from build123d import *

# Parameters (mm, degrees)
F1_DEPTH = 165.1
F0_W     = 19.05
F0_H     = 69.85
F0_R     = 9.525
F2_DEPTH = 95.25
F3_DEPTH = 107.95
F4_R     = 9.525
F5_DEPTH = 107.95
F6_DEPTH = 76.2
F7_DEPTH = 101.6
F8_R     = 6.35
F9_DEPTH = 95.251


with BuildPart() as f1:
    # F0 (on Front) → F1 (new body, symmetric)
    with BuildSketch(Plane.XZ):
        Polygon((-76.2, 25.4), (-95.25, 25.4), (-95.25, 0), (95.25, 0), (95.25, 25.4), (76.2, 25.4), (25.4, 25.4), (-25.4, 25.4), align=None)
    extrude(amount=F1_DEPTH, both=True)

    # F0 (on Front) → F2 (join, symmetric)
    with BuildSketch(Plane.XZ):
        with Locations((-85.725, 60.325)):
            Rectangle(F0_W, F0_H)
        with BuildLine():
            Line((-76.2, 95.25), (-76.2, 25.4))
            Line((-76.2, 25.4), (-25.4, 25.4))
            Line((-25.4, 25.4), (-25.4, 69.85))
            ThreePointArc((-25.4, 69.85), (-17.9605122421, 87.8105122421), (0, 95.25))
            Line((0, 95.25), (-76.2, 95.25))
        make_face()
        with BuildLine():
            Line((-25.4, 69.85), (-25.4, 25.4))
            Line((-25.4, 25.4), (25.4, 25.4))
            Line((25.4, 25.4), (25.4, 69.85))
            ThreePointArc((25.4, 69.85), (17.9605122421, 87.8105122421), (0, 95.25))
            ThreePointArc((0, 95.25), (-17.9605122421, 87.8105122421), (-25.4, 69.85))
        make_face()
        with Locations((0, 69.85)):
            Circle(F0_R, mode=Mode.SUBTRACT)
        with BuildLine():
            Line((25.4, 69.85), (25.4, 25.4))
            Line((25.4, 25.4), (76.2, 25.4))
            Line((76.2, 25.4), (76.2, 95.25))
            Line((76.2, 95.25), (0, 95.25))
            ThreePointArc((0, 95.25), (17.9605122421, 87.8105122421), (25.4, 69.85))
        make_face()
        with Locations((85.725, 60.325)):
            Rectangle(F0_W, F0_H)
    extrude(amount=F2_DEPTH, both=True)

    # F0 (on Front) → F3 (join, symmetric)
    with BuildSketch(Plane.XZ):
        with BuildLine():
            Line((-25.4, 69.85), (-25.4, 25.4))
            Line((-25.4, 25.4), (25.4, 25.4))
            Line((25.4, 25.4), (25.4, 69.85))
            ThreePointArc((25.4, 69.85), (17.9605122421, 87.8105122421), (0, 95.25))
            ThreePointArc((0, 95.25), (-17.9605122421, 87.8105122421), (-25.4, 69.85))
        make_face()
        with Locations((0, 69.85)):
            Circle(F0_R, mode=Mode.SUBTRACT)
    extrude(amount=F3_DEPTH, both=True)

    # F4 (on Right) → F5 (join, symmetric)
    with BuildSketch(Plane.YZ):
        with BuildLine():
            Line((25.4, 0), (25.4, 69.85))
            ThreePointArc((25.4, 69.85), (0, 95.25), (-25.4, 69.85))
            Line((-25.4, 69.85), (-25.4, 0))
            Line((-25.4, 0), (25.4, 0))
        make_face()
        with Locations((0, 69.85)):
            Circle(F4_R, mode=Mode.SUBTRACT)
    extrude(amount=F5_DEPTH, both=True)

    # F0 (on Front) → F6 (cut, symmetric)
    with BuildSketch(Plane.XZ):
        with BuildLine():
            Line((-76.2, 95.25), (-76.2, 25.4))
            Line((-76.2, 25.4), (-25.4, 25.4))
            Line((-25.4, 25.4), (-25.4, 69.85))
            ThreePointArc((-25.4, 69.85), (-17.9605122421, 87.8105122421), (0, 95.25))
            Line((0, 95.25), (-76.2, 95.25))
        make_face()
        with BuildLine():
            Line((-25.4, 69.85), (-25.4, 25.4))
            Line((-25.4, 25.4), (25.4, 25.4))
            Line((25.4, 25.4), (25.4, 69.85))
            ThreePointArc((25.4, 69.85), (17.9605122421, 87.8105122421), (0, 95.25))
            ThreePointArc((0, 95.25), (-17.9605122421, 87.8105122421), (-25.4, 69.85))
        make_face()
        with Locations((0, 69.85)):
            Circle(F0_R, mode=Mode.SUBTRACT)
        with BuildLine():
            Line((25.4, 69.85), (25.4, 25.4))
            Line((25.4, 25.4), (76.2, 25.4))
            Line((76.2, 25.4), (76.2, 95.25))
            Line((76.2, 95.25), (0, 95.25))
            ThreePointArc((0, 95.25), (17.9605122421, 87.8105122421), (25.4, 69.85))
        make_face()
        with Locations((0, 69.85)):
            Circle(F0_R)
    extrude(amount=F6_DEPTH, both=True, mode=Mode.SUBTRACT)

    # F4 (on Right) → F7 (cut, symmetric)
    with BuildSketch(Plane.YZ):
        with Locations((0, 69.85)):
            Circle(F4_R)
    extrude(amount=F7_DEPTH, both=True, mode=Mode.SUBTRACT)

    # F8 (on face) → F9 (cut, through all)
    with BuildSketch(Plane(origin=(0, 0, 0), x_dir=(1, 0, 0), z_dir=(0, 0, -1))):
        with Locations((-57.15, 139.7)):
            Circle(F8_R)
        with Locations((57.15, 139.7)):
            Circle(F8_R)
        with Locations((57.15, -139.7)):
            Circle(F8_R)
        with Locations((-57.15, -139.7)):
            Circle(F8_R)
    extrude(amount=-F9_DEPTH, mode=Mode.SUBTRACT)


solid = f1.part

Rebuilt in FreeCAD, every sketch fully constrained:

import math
import FreeCAD as App
import Part
import Sketcher

V = App.Vector
Q = App.Units.Quantity

doc = App.newDocument("Part")
body = doc.addObject("PartDesign::Body", "Body")

# Sketch on XZ plane
sketch1 = body.newObject("Sketcher::SketchObject", "Sketch")
sketch1.AttachmentSupport = (doc.getObject("XZ_Plane"), [""])
sketch1.MapMode = "FlatFace"
sketch1.addGeometry(Part.LineSegment(V(-95, 25, 0), V(-95, 0, 0)), False)
sketch1.addGeometry(Part.LineSegment(V(-95, 0, 0), V(95, 0, 0)), False)
sketch1.addGeometry(Part.LineSegment(V(95, 0, 0), V(95, 25, 0)), False)
sketch1.addGeometry(Part.LineSegment(V(95, 25, 0), V(-95, 25, 0)), False)
sketch1.addConstraint(Sketcher.Constraint("Coincident", 0, 2, 1, 1))
sketch1.addConstraint(Sketcher.Constraint("Coincident", 1, 2, 2, 1))
sketch1.addConstraint(Sketcher.Constraint("Coincident", 2, 2, 3, 1))
sketch1.addConstraint(Sketcher.Constraint("Coincident", 3, 2, 0, 1))
sketch1.addConstraint(Sketcher.Constraint("Vertical", 0))
sketch1.addConstraint(Sketcher.Constraint("Horizontal", 1))
sketch1.addConstraint(Sketcher.Constraint("Vertical", 2))
sketch1.addConstraint(Sketcher.Constraint("Horizontal", 3))
sketch1.addConstraint(Sketcher.Constraint("Symmetric", 0, 2, 1, 2, -1, 1))
sketch1.addConstraint(Sketcher.Constraint("DistanceY", 0, 2, 0, 1, Q("1 in")))
sketch1.addConstraint(Sketcher.Constraint("DistanceX", 1, 1, 1, 2, Q("7.5 in")))
pad1 = body.newObject("PartDesign::Pad", "Pad")
pad1.Profile = sketch1
pad1.Length = Q("13 in")
pad1.Midplane = True

# Sketch on XZ plane
sketch2 = body.newObject("Sketcher::SketchObject", "Sketch001")
sketch2.AttachmentSupport = (doc.getObject("XZ_Plane"), [""])
sketch2.MapMode = "FlatFace"
sketch2.addGeometry(Part.LineSegment(V(-95, 95, 0), V(-95, 25, 0)), False)
sketch2.addGeometry(Part.LineSegment(V(-95, 25, 0), V(95, 25, 0)), False)
sketch2.addGeometry(Part.LineSegment(V(95, 25, 0), V(95, 95, 0)), False)
sketch2.addGeometry(Part.LineSegment(V(95, 95, 0), V(-95, 95, 0)), False)
sketch2.addGeometry(Part.Circle(V(0, 70, 0), V(0, 0, 1), 10), False)
sketch2.addConstraint(Sketcher.Constraint("Coincident", 0, 2, 1, 1))
sketch2.addConstraint(Sketcher.Constraint("Coincident", 1, 2, 2, 1))
sketch2.addConstraint(Sketcher.Constraint("Coincident", 2, 2, 3, 1))
sketch2.addConstraint(Sketcher.Constraint("Coincident", 3, 2, 0, 1))
sketch2.addConstraint(Sketcher.Constraint("Vertical", 0))
sketch2.addConstraint(Sketcher.Constraint("Horizontal", 1))
sketch2.addConstraint(Sketcher.Constraint("Vertical", 2))
sketch2.addConstraint(Sketcher.Constraint("Horizontal", 3))
sketch2.addConstraint(Sketcher.Constraint("PointOnObject", 4, 3, -2))
sketch2.addConstraint(Sketcher.Constraint("Diameter", 4, Q("0.75 in")))
sketch2.addConstraint(Sketcher.Constraint("DistanceX", 1, 1, 1, 2, Q("7.5 in")))
sketch2.addConstraint(Sketcher.Constraint("DistanceY", -1, 1, 0, 2, Q("1 in")))
sketch2.addConstraint(Sketcher.Constraint("DistanceY", 4, 3, 2, 2, Q("1 in")))
sketch2.addConstraint(Sketcher.Constraint("DistanceY", 0, 2, 0, 1, Q("2.75 in")))
sketch2.addConstraint(Sketcher.Constraint("DistanceX", 0, 2, -1, 1, Q("3.75 in")))
pad2 = body.newObject("PartDesign::Pad", "Pad001")
pad2.Profile = sketch2
pad2.Length = Q("7.5 in")
pad2.Midplane = True

# Sketch on XZ plane
sketch3 = body.newObject("Sketcher::SketchObject", "Sketch002")
sketch3.AttachmentSupport = (doc.getObject("XZ_Plane"), [""])
sketch3.MapMode = "FlatFace"
sketch3.addGeometry(Part.LineSegment(V(-25, 70, 0), V(-25, 25, 0)), False)
sketch3.addGeometry(Part.LineSegment(V(-25, 25, 0), V(25, 25, 0)), False)
sketch3.addGeometry(Part.LineSegment(V(25, 25, 0), V(25, 70, 0)), False)
sketch3.addGeometry(Part.ArcOfCircle(Part.Circle(V(0, 70, 0), V(0, 0, 1), 25), math.radians(0), math.radians(90)), False)
sketch3.addGeometry(Part.ArcOfCircle(Part.Circle(V(0, 70, 0), V(0, 0, 1), 25), math.radians(90), math.radians(180)), False)
sketch3.addGeometry(Part.Circle(V(0, 70, 0), V(0, 0, 1), 10), False)
sketch3.addConstraint(Sketcher.Constraint("Coincident", 0, 2, 1, 1))
sketch3.addConstraint(Sketcher.Constraint("Coincident", 1, 2, 2, 1))
sketch3.addConstraint(Sketcher.Constraint("Tangent", 2, 2, 3, 1))
sketch3.addConstraint(Sketcher.Constraint("Tangent", 3, 2, 4, 1))
sketch3.addConstraint(Sketcher.Constraint("Tangent", 4, 2, 0, 1))
sketch3.addConstraint(Sketcher.Constraint("Vertical", 0))
sketch3.addConstraint(Sketcher.Constraint("Horizontal", 1))
sketch3.addConstraint(Sketcher.Constraint("Vertical", 2))
sketch3.addConstraint(Sketcher.Constraint("Coincident", 5, 3, 3, 3))
sketch3.addConstraint(Sketcher.Constraint("Equal", 3, 4))
sketch3.addConstraint(Sketcher.Constraint("PointOnObject", 3, 3, -2))
sketch3.addConstraint(Sketcher.Constraint("PointOnObject", 3, 2, -2))
sketch3.addConstraint(Sketcher.Constraint("Radius", 3, Q("1 in")))
sketch3.addConstraint(Sketcher.Constraint("Diameter", 5, Q("0.75 in")))
sketch3.addConstraint(Sketcher.Constraint("DistanceY", -1, 1, 0, 2, Q("1 in")))
sketch3.addConstraint(Sketcher.Constraint("DistanceY", 0, 2, 0, 1, Q("1.75 in")))
pad3 = body.newObject("PartDesign::Pad", "Pad002")
pad3.Profile = sketch3
pad3.Length = Q("8.5 in")
pad3.Midplane = True

# Sketch on YZ plane
sketch4 = body.newObject("Sketcher::SketchObject", "Sketch003")
sketch4.AttachmentSupport = (doc.getObject("YZ_Plane"), [""])
sketch4.MapMode = "FlatFace"
sketch4.addGeometry(Part.LineSegment(V(25, 0, 0), V(25, 70, 0)), False)
sketch4.addGeometry(Part.ArcOfCircle(Part.Circle(V(0, 70, 0), V(0, 0, 1), 25), math.radians(0), math.radians(180)), False)
sketch4.addGeometry(Part.LineSegment(V(-25, 70, 0), V(-25, 0, 0)), False)
sketch4.addGeometry(Part.LineSegment(V(-25, 0, 0), V(25, 0, 0)), False)
sketch4.addGeometry(Part.Circle(V(0, 70, 0), V(0, 0, 1), 10), False)
sketch4.addConstraint(Sketcher.Constraint("Tangent", 0, 2, 1, 1))
sketch4.addConstraint(Sketcher.Constraint("Tangent", 1, 2, 2, 1))
sketch4.addConstraint(Sketcher.Constraint("Coincident", 2, 2, 3, 1))
sketch4.addConstraint(Sketcher.Constraint("Coincident", 3, 2, 0, 1))
sketch4.addConstraint(Sketcher.Constraint("Vertical", 0))
sketch4.addConstraint(Sketcher.Constraint("Vertical", 2))
sketch4.addConstraint(Sketcher.Constraint("Horizontal", 3))
sketch4.addConstraint(Sketcher.Constraint("Coincident", 4, 3, 1, 3))
sketch4.addConstraint(Sketcher.Constraint("Symmetric", 2, 2, 3, 2, -1, 1))
sketch4.addConstraint(Sketcher.Constraint("Radius", 1, Q("1 in")))
sketch4.addConstraint(Sketcher.Constraint("Diameter", 4, Q("0.75 in")))
sketch4.addConstraint(Sketcher.Constraint("DistanceY", 0, 1, 0, 2, Q("2.75 in")))
pad4 = body.newObject("PartDesign::Pad", "Pad003")
pad4.Profile = sketch4
pad4.Length = Q("8.5 in")
pad4.Midplane = True

# Sketch on XZ plane
sketch5 = body.newObject("Sketcher::SketchObject", "Sketch004")
sketch5.AttachmentSupport = (doc.getObject("XZ_Plane"), [""])
sketch5.MapMode = "FlatFace"
sketch5.addGeometry(Part.LineSegment(V(-76, 95, 0), V(-76, 25, 0)), False)
sketch5.addGeometry(Part.LineSegment(V(-76, 25, 0), V(76, 25, 0)), False)
sketch5.addGeometry(Part.LineSegment(V(76, 25, 0), V(76, 95, 0)), False)
sketch5.addGeometry(Part.LineSegment(V(76, 95, 0), V(-76, 95, 0)), False)
sketch5.addConstraint(Sketcher.Constraint("Coincident", 0, 2, 1, 1))
sketch5.addConstraint(Sketcher.Constraint("Coincident", 1, 2, 2, 1))
sketch5.addConstraint(Sketcher.Constraint("Coincident", 2, 2, 3, 1))
sketch5.addConstraint(Sketcher.Constraint("Coincident", 3, 2, 0, 1))
sketch5.addConstraint(Sketcher.Constraint("Vertical", 0))
sketch5.addConstraint(Sketcher.Constraint("Horizontal", 1))
sketch5.addConstraint(Sketcher.Constraint("Vertical", 2))
sketch5.addConstraint(Sketcher.Constraint("Horizontal", 3))
sketch5.addConstraint(Sketcher.Constraint("DistanceX", 1, 1, 1, 2, Q("6 in")))
sketch5.addConstraint(Sketcher.Constraint("DistanceX", 0, 2, -1, 1, Q("3 in")))
sketch5.addConstraint(Sketcher.Constraint("DistanceY", -1, 1, 0, 2, Q("1 in")))
sketch5.addConstraint(Sketcher.Constraint("DistanceY", 0, 2, 0, 1, Q("2.75 in")))
pocket1 = body.newObject("PartDesign::Pocket", "Pocket")
pocket1.Profile = sketch5
pocket1.Length = Q("6 in")
pocket1.Midplane = True

# Sketch on YZ plane
sketch6 = body.newObject("Sketcher::SketchObject", "Sketch005")
sketch6.AttachmentSupport = (doc.getObject("YZ_Plane"), [""])
sketch6.MapMode = "FlatFace"
sketch6.addGeometry(Part.Circle(V(0, 70, 0), V(0, 0, 1), 10), False)
sketch6.addConstraint(Sketcher.Constraint("PointOnObject", 0, 3, -2))
sketch6.addConstraint(Sketcher.Constraint("Diameter", 0, Q("0.75 in")))
sketch6.addConstraint(Sketcher.Constraint("DistanceY", -1, 1, 0, 3, Q("2.75 in")))
pocket2 = body.newObject("PartDesign::Pocket", "Pocket001")
pocket2.Profile = sketch6
pocket2.Length = Q("8 in")
pocket2.Midplane = True

# Sketch on XY plane
sketch7 = body.newObject("Sketcher::SketchObject", "Sketch006")
sketch7.AttachmentSupport = (doc.getObject("XY_Plane"), [""])
sketch7.MapMode = "FlatFace"
sketch7.addGeometry(Part.Circle(V(-57, -140, 0), V(0, 0, 1), 6), False)
sketch7.addGeometry(Part.Circle(V(57, -140, 0), V(0, 0, 1), 6), False)
sketch7.addGeometry(Part.Circle(V(57, 140, 0), V(0, 0, 1), 6), False)
sketch7.addGeometry(Part.Circle(V(-57, 140, 0), V(0, 0, 1), 6), False)
sketch7.addConstraint(Sketcher.Constraint("Equal", 0, 1))
sketch7.addConstraint(Sketcher.Constraint("Equal", 1, 2))
sketch7.addConstraint(Sketcher.Constraint("Equal", 2, 3))
sketch7.addConstraint(Sketcher.Constraint("Symmetric", 0, 3, 2, 3, -1, 1))
sketch7.addConstraint(Sketcher.Constraint("Symmetric", 1, 3, 3, 3, -1, 1))
sketch7.addConstraint(Sketcher.Constraint("Symmetric", 0, 3, 1, 3, -2))
sketch7.addConstraint(Sketcher.Constraint("Diameter", 0, Q("0.5 in")))
sketch7.addConstraint(Sketcher.Constraint("DistanceY", 1, 3, 2, 3, Q("11 in")))
sketch7.addConstraint(Sketcher.Constraint("DistanceX", 0, 3, 1, 3, Q("4.5 in")))
pocket3 = body.newObject("PartDesign::Pocket", "Pocket002")
pocket3.Profile = sketch7
pocket3.Type = "ThroughAll"
pocket3.Reversed = True

doc.recompute()
